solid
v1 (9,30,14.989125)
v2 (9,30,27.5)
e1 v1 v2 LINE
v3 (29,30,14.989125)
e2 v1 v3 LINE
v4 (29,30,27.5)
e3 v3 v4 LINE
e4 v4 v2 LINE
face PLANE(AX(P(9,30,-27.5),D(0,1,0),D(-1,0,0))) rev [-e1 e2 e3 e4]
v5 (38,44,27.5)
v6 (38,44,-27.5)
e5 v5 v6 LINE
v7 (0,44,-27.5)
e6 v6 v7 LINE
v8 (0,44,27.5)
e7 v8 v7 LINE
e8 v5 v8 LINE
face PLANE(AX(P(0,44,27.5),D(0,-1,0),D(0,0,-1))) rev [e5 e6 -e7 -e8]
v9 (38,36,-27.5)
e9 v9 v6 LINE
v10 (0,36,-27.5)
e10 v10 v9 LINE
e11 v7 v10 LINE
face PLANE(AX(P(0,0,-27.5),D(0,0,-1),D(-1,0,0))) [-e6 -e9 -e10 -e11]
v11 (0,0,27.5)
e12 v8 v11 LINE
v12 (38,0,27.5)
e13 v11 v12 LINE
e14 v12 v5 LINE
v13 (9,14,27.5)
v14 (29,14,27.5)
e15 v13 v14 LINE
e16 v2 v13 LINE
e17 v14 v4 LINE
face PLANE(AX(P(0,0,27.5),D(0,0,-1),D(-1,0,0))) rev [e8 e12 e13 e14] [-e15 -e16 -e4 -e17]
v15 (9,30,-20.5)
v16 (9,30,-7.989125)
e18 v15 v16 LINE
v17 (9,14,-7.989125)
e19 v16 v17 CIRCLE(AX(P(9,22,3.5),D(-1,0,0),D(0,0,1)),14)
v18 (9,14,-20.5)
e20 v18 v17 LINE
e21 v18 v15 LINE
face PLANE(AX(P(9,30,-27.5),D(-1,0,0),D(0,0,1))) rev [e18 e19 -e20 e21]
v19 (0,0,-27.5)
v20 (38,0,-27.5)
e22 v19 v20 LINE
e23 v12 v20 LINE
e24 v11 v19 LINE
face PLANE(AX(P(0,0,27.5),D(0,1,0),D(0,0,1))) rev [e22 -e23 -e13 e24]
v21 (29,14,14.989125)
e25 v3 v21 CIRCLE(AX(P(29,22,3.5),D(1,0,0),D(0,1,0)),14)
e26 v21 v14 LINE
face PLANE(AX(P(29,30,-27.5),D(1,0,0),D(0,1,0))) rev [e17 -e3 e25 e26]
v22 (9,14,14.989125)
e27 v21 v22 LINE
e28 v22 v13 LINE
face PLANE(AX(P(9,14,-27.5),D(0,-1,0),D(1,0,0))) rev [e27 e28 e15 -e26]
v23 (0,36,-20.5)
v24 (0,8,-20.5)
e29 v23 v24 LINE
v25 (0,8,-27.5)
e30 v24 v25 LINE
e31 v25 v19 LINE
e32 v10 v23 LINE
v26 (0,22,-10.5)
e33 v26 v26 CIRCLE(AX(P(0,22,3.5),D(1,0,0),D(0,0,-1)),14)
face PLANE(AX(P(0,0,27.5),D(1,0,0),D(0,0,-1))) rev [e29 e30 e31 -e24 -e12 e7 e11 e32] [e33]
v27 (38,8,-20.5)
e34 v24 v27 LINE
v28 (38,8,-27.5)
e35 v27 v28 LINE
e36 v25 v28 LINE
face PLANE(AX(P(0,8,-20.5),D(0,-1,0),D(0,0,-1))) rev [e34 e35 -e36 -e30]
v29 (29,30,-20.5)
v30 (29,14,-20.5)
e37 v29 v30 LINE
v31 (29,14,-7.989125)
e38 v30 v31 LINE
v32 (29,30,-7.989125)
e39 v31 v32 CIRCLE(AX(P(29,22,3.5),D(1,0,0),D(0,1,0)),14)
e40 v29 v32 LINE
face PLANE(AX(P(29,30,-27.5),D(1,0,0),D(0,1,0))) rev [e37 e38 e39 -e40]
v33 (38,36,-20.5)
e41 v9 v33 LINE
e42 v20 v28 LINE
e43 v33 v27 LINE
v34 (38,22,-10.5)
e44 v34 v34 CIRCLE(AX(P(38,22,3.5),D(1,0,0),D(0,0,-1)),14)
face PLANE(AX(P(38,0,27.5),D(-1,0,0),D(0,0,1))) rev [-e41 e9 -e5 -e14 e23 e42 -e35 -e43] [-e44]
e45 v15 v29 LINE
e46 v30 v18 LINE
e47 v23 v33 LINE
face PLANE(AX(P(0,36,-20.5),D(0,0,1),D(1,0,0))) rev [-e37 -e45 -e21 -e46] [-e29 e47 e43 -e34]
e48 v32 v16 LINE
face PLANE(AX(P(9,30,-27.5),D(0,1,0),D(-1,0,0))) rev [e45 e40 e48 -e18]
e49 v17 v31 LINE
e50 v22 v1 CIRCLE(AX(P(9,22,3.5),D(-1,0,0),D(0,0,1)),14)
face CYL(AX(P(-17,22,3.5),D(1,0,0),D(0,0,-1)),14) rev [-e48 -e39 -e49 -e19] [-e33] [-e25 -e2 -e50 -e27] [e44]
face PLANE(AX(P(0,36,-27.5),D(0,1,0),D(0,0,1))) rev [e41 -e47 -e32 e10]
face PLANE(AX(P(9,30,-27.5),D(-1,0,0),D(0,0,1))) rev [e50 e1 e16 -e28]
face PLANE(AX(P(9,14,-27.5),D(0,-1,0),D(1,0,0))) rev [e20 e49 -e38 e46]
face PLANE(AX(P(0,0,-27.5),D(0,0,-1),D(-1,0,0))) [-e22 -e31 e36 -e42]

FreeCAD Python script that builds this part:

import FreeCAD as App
import Part
import Sketcher
from FreeCAD import Vector
Q = App.Units.Quantity


def add_polygon(sketch, points):
    """Adds a closed chain of lines whose ends are joined by coincident constraints."""
    first, n = sketch.GeometryCount, len(points)
    for a, b in zip(points, points[1:] + points[:1]):
        sketch.addGeometry(Part.LineSegment(App.Vector(*a, 0), App.Vector(*b, 0)), False)
    for i in range(n):
        sketch.addConstraint(Sketcher.Constraint("Coincident", first + i, 2, first + (i + 1) % n, 1))

doc = App.newDocument("Part")
body = doc.addObject("PartDesign::Body", "Body")

# Sketch on XY plane
sketch1 = doc.addObject("Sketcher::SketchObject", "Sketch")
body.addObject(sketch1)
sketch1.AttachmentSupport = (doc.XY_Plane, [""])
sketch1.MapMode = "FlatFace"
add_polygon(sketch1, [(0, 44), (0, 0), (38, 0), (38, 44)])  # lines 0-3
sketch1.addConstraint([
    Sketcher.Constraint("Vertical", 0),
    Sketcher.Constraint("Horizontal", 1),
    Sketcher.Constraint("Vertical", 2),
    Sketcher.Constraint("Horizontal", 3),
    Sketcher.Constraint("Coincident", 0, 2, -1, 1),
    Sketcher.Constraint("DistanceX", 1, 1, 1, 2, Q("38 mm")),
    Sketcher.Constraint("DistanceY", 0, 2, 0, 1, Q("44 mm")),
])
pad1 = doc.addObject("PartDesign::Pad", "Pad")
body.addObject(pad1)
pad1.Profile = sketch1
pad1.Length = 55
pad1.Midplane = True

# Sketch on XY plane
sketch2 = doc.addObject("Sketcher::SketchObject", "Sketch001")
body.addObject(sketch2)
sketch2.AttachmentSupport = (doc.XY_Plane, [""])
sketch2.MapMode = "FlatFace"
sketch2.AttachmentOffset = App.Placement(Vector(0, 0, 27.5), App.Rotation())
add_polygon(sketch2, [(9, 30), (9, 14), (29, 14), (29, 30)])  # lines 0-3
sketch2.addConstraint([
    Sketcher.Constraint("Vertical", 0),
    Sketcher.Constraint("Horizontal", 1),
    Sketcher.Constraint("Vertical", 2),
    Sketcher.Constraint("Horizontal", 3),
    Sketcher.Constraint("DistanceX", 1, 1, 1, 2, Q("20 mm")),
    Sketcher.Constraint("DistanceY", 0, 2, 0, 1, Q("16 mm")),
    Sketcher.Constraint("DistanceX", -1, 1, 0, 2, Q("9 mm")),
    Sketcher.Constraint("DistanceY", -1, 1, 0, 2, Q("14 mm")),
])
pocket1 = doc.addObject("PartDesign::Pocket", "Pocket")
body.addObject(pocket1)
pocket1.Profile = sketch2
pocket1.Length = 55

# Sketch on YZ plane
sketch3 = doc.addObject("Sketcher::SketchObject", "Sketch002")
body.addObject(sketch3)
sketch3.AttachmentSupport = (doc.YZ_Plane, [""])
sketch3.MapMode = "FlatFace"
sketch3.AttachmentOffset = App.Placement(Vector(0, 0, 38), App.Rotation())
sketch3.addGeometry(Part.Circle(Vector(22, 4, 0), Vector(0, 0, 1), 14), False)
sketch3.addConstraint([
    Sketcher.Constraint("Diameter", 0, Q("28 mm")),
    Sketcher.Constraint("DistanceX", -1, 1, 0, 3, Q("22 mm")),
    Sketcher.Constraint("DistanceY", -1, 1, 0, 3, Q("3.5 mm")),
])
pocket2 = doc.addObject("PartDesign::Pocket", "Pocket001")
body.addObject(pocket2)
pocket2.Profile = sketch3
pocket2.Length = 55

# Sketch on YZ plane
sketch4 = doc.addObject("Sketcher::SketchObject", "Sketch003")
body.addObject(sketch4)
sketch4.AttachmentSupport = (doc.YZ_Plane, [""])
sketch4.MapMode = "FlatFace"
sketch4.AttachmentOffset = App.Placement(Vector(0, 0, 38), App.Rotation())
add_polygon(sketch4, [(36, -20), (8, -20), (8, -28), (36, -28)])  # lines 0-3
sketch4.addConstraint([
    Sketcher.Constraint("Horizontal", 0),
    Sketcher.Constraint("Vertical", 1),
    Sketcher.Constraint("Horizontal", 2),
    Sketcher.Constraint("Vertical", 3),
    Sketcher.Constraint("DistanceX", 0, 2, 0, 1, Q("28 mm")),
    Sketcher.Constraint("DistanceY", 1, 2, 1, 1, Q("7 mm")),
    Sketcher.Constraint("DistanceX", -1, 1, 0, 2, Q("8 mm")),
    Sketcher.Constraint("DistanceY", 0, 2, -1, 1, Q("20.5 mm")),
])
pocket3 = doc.addObject("PartDesign::Pocket", "Pocket002")
body.addObject(pocket3)
pocket3.Profile = sketch4
pocket3.Type = "ThroughAll"

doc.recompute()
